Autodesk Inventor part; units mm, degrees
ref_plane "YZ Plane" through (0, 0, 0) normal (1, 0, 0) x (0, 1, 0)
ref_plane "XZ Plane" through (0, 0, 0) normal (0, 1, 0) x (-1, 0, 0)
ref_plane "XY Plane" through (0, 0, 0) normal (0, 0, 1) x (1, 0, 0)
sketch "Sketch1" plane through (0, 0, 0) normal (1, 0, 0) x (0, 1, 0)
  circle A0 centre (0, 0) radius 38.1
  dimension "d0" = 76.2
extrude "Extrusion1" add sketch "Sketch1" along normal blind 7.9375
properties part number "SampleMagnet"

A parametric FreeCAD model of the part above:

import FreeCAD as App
import Part
import Sketcher

V = App.Vector
Q = App.Units.Quantity

doc = App.newDocument("Part")
params = doc.addObject("Spreadsheet::Sheet", "Params")
for row, (alias, value) in enumerate([
    ("sketch1_diameter", "3 in"),
    ("pad1_length", "0.3125 in"),
], start=1):
    params.set(f"A{row}", alias)
    params.set(f"B{row}", "=" + value)
    params.setAlias(f"B{row}", alias)

body = doc.addObject("PartDesign::Body", "Body")

# Sketch on YZ plane
sketch1 = body.newObject("Sketcher::SketchObject", "Sketch")
sketch1.AttachmentSupport = (doc.getObject("YZ_Plane"), [""])
sketch1.MapMode = "FlatFace"
sketch1.addGeometry(Part.Circle(V(0, 0, 0), V(0, 0, 1), 38.1), False)
sketch1.addConstraint([
    Sketcher.Constraint("Coincident", 0, 3, -1, 1),
    Sketcher.Constraint("Diameter", 0, Q("3 in")),
])
sketch1.setExpression("Constraints[1]", "Params.sketch1_diameter")
pad1 = body.newObject("PartDesign::Pad", "Pad")
pad1.Profile = sketch1
pad1.setExpression("Length", "Params.pad1_length")

doc.recompute()
